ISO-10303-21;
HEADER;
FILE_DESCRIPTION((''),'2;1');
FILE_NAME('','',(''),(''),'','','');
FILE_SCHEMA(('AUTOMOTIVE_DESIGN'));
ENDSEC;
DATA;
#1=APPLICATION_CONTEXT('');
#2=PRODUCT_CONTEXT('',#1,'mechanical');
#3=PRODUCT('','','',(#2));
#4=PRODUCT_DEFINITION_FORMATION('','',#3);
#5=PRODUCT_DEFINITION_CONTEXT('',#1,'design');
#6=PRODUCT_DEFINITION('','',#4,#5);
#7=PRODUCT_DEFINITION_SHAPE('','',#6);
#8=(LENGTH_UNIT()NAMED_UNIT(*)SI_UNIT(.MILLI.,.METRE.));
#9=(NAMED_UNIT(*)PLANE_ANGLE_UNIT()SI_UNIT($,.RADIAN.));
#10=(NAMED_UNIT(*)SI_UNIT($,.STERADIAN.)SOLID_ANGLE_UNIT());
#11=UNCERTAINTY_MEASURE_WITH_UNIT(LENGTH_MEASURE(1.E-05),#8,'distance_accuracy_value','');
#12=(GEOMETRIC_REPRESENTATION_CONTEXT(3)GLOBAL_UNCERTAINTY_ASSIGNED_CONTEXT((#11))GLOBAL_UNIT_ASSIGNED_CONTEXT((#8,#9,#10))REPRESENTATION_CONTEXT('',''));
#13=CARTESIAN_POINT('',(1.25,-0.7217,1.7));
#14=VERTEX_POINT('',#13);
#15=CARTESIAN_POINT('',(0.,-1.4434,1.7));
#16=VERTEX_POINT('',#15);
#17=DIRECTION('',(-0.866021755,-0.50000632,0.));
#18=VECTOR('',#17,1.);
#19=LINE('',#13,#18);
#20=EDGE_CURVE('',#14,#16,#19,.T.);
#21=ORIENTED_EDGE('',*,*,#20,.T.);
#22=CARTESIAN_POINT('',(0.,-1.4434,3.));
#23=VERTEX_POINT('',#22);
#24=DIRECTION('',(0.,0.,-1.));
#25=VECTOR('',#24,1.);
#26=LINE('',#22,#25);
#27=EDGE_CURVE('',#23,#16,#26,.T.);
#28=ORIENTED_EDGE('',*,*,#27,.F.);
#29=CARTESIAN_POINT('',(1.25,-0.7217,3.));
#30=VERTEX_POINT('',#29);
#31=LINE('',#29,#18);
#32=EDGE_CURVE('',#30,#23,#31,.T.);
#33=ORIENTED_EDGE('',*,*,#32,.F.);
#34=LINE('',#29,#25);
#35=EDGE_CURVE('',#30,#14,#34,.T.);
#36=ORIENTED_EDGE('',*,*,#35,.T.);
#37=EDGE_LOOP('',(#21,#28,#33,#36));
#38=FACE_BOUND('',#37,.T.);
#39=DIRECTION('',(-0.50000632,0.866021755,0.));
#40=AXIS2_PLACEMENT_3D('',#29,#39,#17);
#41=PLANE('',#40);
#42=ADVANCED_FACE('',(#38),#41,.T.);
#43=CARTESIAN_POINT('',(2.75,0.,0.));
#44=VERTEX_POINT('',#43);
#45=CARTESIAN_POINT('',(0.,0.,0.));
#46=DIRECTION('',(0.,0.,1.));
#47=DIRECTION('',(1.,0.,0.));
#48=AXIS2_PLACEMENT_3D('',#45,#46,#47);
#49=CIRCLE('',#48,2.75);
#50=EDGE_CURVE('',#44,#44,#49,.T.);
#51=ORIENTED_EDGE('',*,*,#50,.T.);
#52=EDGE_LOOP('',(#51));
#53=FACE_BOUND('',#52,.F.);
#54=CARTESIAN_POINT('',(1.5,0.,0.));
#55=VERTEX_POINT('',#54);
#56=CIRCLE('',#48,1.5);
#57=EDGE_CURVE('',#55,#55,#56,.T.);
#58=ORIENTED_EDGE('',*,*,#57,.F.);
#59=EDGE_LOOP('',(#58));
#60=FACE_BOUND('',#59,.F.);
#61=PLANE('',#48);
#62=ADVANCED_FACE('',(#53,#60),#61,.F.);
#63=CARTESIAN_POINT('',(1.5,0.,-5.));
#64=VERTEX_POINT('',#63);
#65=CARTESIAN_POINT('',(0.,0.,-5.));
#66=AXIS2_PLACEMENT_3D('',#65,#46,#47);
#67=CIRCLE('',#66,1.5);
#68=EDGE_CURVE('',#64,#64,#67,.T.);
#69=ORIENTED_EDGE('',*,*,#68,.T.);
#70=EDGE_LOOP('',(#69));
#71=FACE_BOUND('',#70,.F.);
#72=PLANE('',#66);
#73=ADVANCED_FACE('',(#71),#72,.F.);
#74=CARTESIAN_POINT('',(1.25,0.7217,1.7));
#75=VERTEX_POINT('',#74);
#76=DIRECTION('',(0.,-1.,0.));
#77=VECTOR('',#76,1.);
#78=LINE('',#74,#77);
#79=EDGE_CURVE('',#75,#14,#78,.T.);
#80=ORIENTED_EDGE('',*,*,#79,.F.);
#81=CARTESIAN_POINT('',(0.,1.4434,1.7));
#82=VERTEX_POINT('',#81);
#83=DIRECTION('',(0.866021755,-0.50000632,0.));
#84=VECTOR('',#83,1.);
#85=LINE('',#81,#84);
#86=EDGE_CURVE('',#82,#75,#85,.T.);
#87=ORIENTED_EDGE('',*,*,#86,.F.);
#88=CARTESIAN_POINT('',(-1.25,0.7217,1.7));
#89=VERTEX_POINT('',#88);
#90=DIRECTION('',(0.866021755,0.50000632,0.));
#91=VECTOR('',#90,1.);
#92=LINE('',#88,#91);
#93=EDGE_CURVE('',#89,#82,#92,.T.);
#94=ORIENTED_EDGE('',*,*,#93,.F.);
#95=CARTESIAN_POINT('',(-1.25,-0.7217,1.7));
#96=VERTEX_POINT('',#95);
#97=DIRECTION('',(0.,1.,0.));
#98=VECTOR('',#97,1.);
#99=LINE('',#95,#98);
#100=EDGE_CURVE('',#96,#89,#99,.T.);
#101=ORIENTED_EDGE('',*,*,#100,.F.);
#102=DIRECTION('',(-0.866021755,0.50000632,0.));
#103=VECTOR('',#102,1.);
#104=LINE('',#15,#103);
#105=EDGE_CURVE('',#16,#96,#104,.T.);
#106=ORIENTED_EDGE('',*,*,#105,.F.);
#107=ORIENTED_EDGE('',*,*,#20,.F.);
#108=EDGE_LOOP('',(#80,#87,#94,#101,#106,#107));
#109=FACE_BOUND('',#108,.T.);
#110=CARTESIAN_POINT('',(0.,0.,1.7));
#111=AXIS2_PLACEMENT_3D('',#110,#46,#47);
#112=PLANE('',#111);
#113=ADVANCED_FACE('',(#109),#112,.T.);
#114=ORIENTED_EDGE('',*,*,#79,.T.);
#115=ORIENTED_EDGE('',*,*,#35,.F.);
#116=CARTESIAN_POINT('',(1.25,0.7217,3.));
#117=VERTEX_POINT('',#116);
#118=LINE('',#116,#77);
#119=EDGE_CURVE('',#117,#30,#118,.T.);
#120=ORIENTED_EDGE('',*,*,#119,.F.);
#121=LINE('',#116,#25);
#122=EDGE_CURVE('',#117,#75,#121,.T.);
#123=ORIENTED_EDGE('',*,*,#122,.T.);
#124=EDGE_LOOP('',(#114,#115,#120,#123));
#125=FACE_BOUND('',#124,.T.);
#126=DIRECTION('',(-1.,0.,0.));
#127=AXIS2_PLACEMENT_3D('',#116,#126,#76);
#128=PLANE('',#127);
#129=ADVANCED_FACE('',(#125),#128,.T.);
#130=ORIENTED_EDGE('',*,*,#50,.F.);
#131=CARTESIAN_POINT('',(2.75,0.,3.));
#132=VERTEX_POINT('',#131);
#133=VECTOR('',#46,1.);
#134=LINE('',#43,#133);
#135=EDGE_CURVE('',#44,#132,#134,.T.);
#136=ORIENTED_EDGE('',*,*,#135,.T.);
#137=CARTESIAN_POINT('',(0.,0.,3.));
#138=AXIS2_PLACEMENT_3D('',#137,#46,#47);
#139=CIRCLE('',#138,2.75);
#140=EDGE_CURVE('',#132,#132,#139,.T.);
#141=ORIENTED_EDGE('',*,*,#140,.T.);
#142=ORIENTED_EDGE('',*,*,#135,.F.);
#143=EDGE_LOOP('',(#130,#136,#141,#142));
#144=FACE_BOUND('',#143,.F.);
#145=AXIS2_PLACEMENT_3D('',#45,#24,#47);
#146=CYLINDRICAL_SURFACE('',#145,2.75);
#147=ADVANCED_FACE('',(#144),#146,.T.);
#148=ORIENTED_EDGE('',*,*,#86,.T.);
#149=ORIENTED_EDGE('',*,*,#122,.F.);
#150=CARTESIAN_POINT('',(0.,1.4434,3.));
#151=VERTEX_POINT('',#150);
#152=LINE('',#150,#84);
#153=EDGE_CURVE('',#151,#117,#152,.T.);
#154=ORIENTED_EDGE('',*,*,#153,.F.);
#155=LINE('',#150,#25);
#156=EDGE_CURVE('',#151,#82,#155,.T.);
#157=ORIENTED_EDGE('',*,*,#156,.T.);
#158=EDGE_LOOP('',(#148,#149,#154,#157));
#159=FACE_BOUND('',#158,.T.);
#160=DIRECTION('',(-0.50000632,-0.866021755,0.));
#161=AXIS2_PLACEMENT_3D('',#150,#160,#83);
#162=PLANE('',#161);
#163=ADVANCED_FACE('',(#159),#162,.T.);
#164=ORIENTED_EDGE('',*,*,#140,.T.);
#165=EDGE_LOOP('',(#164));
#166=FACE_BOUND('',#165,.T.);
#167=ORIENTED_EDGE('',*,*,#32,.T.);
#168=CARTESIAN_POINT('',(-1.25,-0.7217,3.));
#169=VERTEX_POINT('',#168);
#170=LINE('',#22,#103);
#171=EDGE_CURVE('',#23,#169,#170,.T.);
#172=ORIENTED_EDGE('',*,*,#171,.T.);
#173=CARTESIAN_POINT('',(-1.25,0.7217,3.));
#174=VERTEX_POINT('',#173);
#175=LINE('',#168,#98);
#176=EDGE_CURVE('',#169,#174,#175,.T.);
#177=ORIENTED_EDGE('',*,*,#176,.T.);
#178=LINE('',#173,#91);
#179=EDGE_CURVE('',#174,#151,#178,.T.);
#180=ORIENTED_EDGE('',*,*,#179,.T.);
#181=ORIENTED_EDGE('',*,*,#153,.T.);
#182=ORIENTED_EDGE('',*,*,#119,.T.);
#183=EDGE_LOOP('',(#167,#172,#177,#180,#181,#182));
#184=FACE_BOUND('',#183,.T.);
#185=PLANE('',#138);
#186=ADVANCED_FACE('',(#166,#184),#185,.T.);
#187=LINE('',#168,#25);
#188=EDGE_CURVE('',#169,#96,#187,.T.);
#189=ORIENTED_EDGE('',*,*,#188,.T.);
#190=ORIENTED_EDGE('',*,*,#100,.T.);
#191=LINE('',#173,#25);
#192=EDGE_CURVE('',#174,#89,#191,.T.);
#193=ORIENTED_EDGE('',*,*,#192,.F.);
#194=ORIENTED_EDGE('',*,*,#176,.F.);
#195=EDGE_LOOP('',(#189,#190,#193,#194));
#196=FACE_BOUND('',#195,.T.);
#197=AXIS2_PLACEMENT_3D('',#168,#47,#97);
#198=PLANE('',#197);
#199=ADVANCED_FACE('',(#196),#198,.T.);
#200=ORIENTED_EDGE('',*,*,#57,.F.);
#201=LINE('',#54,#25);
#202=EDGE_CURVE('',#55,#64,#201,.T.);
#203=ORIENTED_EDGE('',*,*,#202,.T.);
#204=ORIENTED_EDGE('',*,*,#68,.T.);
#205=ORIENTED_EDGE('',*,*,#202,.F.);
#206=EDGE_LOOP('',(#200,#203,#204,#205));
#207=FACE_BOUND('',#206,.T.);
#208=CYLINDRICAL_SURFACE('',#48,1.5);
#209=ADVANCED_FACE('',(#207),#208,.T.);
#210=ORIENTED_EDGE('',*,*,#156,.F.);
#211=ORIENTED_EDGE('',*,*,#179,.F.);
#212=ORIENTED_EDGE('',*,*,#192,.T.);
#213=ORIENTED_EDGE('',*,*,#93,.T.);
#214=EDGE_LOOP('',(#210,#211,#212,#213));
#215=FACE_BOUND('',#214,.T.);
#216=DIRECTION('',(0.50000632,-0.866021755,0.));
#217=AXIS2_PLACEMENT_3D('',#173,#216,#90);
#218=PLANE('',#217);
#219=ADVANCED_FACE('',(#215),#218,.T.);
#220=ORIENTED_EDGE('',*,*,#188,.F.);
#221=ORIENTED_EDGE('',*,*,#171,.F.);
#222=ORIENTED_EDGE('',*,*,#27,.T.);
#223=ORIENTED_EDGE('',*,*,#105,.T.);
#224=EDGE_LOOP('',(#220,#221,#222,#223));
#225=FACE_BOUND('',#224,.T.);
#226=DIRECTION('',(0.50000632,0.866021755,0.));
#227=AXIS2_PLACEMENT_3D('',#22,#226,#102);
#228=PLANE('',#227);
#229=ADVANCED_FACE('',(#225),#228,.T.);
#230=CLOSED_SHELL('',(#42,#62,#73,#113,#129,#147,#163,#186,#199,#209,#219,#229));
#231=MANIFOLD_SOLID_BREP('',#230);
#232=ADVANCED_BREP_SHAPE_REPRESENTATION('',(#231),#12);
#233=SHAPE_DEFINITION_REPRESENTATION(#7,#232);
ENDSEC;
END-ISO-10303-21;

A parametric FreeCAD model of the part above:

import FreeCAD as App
import Part
import Sketcher

V = App.Vector
Q = App.Units.Quantity


def add_polygon(sketch, points):
    """Adds a closed chain of lines whose ends are joined by coincident constraints."""
    first, n = sketch.GeometryCount, len(points)
    for a, b in zip(points, points[1:] + points[:1]):
        sketch.addGeometry(Part.LineSegment(App.Vector(*a, 0), App.Vector(*b, 0)), False)
    for i in range(n):
        sketch.addConstraint(Sketcher.Constraint("Coincident", first + i, 2, first + (i + 1) % n, 1))

doc = App.newDocument("Part")
params = doc.addObject("Spreadsheet::Sheet", "Params")
for row, (alias, value) in enumerate([
    ("sketch1_diameter", "3 mm"),
    ("pad1_length", "5 mm"),
    ("sketch2_diameter", "5.5 mm"),
    ("pad2_length", "3 mm"),
    ("pocket1_length", "1.3 mm"),
], start=1):
    params.set(f"A{row}", alias)
    params.set(f"B{row}", "=" + value)
    params.setAlias(f"B{row}", alias)

body = doc.addObject("PartDesign::Body", "Body")

# Sketch on XY plane
sketch1 = body.newObject("Sketcher::SketchObject", "Sketch")
sketch1.AttachmentSupport = (doc.getObject("XY_Plane"), [""])
sketch1.MapMode = "FlatFace"
sketch1.addGeometry(Part.Circle(V(0, 0, 0), V(0, 0, 1), 1.5), False)
sketch1.addConstraint([
    Sketcher.Constraint("Coincident", 0, 3, -1, 1),
    Sketcher.Constraint("Diameter", 0, Q("3 mm")),
])
sketch1.setExpression("Constraints[1]", "Params.sketch1_diameter")
pad1 = body.newObject("PartDesign::Pad", "Pad")
pad1.Profile = sketch1
pad1.setExpression("Length", "Params.pad1_length")
pad1.Reversed = True

# Sketch on XY plane
sketch2 = body.newObject("Sketcher::SketchObject", "Sketch001")
sketch2.AttachmentSupport = (doc.getObject("XY_Plane"), [""])
sketch2.MapMode = "FlatFace"
sketch2.addGeometry(Part.Circle(V(0, 0, 0), V(0, 0, 1), 2.75), False)
sketch2.addConstraint([
    Sketcher.Constraint("Coincident", 0, 3, -1, 1),
    Sketcher.Constraint("Diameter", 0, Q("5.5 mm")),
])
sketch2.setExpression("Constraints[1]", "Params.sketch2_diameter")
pad2 = body.newObject("PartDesign::Pad", "Pad001")
pad2.Profile = sketch2
pad2.setExpression("Length", "Params.pad2_length")

# Sketch on XY plane
sketch3 = body.newObject("Sketcher::SketchObject", "Sketch002")
sketch3.AttachmentSupport = (doc.getObject("XY_Plane"), [""])
sketch3.MapMode = "FlatFace"
sketch3.AttachmentOffset = App.Placement(V(0, 0, 3), App.Rotation())
add_polygon(sketch3, [(1.25, 0.7217), (0, 1.4434), (-1.25, 0.7217), (-1.25, -0.7217), (0, -1.4434), (1.25, -0.7217)])  # lines 0-5
sketch3.addConstraint([
    Sketcher.Constraint("Vertical", 2),
    Sketcher.Constraint("Vertical", 5),
    Sketcher.Constraint("Symmetric", 0, 2, 3, 2, -1, 1),
    Sketcher.Constraint("Symmetric", 1, 2, 4, 2, -1, 1),
    Sketcher.Constraint("PointOnObject", 0, 2, -2),
    Sketcher.Constraint("Parallel", 0, 3),
    Sketcher.Constraint("Horizontal", 2, 2, 4, 2),
    Sketcher.Constraint("DistanceX", 2, 2, 4, 2, Q("2.5 mm")),
    Sketcher.Constraint("Angle", 0, Q("149.9996 deg")),
    Sketcher.Constraint("DistanceY", 2, 2, 2, 1, Q("1.4434 mm")),
])
pocket1 = body.newObject("PartDesign::Pocket", "Pocket")
pocket1.Profile = sketch3
pocket1.setExpression("Length", "Params.pocket1_length")

doc.recompute()
